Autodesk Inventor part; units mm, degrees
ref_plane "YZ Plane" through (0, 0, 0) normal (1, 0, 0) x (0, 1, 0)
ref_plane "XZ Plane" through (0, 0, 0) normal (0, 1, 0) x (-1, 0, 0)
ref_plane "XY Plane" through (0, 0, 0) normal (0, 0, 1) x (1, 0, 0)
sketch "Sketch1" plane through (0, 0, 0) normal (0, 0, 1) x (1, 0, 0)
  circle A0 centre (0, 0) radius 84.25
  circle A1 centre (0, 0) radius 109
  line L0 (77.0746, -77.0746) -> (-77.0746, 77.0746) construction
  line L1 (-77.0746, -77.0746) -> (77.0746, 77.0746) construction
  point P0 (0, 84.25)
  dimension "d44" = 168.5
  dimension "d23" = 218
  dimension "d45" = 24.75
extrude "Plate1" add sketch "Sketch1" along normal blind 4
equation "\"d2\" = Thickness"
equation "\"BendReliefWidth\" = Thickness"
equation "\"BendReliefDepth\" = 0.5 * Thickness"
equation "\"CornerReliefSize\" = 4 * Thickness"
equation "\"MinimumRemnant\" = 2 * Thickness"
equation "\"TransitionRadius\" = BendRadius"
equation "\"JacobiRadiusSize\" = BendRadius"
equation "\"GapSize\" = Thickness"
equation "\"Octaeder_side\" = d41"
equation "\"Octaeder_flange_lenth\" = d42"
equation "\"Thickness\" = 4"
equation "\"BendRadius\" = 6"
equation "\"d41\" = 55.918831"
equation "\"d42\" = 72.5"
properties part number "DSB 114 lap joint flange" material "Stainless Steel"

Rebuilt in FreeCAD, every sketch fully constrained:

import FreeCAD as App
import Part
import Sketcher

doc = App.newDocument("Part")
body = doc.addObject("PartDesign::Body", "Body")

# Sketch on XY plane
sketch1 = body.newObject("Sketcher::SketchObject", "Sketch")
sketch1.AttachmentSupport = (doc.getObject("XY_Plane"), [""])
sketch1.MapMode = "FlatFace"
sketch1.addGeometry(Part.Circle(App.Vector(0, 0, 0), App.Vector(0, 0, 1), 109), False)
sketch1.addGeometry(Part.Circle(App.Vector(0, 0, 0), App.Vector(0, 0, 1), 84), False)
sketch1.addConstraint(Sketcher.Constraint("Coincident", 0, 3, -1, 1))
sketch1.addConstraint(Sketcher.Constraint("Coincident", 1, 3, -1, 1))
sketch1.addConstraint(Sketcher.Constraint("Diameter", 0, 218.0))
sketch1.addConstraint(Sketcher.Constraint("Diameter", 1, 168.5))
pad1 = body.newObject("PartDesign::Pad", "Pad")
pad1.Profile = sketch1
pad1.Length = 4

doc.recompute()
